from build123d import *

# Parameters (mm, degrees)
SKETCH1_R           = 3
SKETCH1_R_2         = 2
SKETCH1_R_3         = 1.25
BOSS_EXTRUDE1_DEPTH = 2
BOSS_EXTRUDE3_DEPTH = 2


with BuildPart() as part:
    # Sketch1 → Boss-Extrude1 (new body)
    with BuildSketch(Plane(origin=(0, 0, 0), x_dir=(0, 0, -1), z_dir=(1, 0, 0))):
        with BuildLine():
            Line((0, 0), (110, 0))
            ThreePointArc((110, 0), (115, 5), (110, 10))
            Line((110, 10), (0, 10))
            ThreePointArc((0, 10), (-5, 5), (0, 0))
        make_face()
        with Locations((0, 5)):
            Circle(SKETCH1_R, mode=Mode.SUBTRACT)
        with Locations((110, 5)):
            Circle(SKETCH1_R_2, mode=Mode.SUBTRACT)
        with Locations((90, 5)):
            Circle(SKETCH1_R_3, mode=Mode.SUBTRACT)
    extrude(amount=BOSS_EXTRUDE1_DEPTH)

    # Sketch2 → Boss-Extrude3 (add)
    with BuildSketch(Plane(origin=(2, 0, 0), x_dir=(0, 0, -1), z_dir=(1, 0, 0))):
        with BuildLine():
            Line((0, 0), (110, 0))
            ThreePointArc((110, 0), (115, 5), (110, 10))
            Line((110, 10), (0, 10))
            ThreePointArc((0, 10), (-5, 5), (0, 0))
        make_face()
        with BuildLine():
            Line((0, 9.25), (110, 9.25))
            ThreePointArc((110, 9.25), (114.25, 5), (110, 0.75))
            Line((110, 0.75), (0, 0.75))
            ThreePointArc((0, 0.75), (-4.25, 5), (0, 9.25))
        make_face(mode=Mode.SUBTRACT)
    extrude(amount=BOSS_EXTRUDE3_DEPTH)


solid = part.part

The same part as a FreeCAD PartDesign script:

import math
import FreeCAD as App
import Part
import Sketcher

V = App.Vector
Q = App.Units.Quantity

doc = App.newDocument("Part")
body = doc.addObject("PartDesign::Body", "Body")

# Sketch on YZ plane
sketch1 = body.newObject("Sketcher::SketchObject", "Sketch")
sketch1.AttachmentSupport = (doc.getObject("YZ_Plane"), [""])
sketch1.MapMode = "FlatFace"
sketch1.addGeometry(Part.LineSegment(V(0, 0, 0), V(0, -110, 0)), False)
sketch1.addGeometry(Part.ArcOfCircle(Part.Circle(V(5, -110, 0), V(0, 0, 1), 5), math.radians(180), math.radians(360)), False)
sketch1.addGeometry(Part.LineSegment(V(10, -110, 0), V(10, 0, 0)), False)
sketch1.addGeometry(Part.ArcOfCircle(Part.Circle(V(5, 0, 0), V(0, 0, 1), 5), math.radians(0), math.radians(180)), False)
sketch1.addGeometry(Part.Circle(V(5, 0, 0), V(0, 0, 1), 3), False)
sketch1.addGeometry(Part.Circle(V(5, -90, 0), V(0, 0, 1), 1.2), False)
sketch1.addGeometry(Part.Circle(V(5, -110, 0), V(0, 0, 1), 2), False)
sketch1.addConstraint(Sketcher.Constraint("Tangent", 0, 2, 1, 1))
sketch1.addConstraint(Sketcher.Constraint("Tangent", 1, 2, 2, 1))
sketch1.addConstraint(Sketcher.Constraint("Tangent", 2, 2, 3, 1))
sketch1.addConstraint(Sketcher.Constraint("Tangent", 3, 2, 0, 1))
sketch1.addConstraint(Sketcher.Constraint("Vertical", 0))
sketch1.addConstraint(Sketcher.Constraint("Vertical", 2))
sketch1.addConstraint(Sketcher.Constraint("Coincident", 3, 2, -1, 1))
sketch1.addConstraint(Sketcher.Constraint("Coincident", 4, 3, 3, 3))
sketch1.addConstraint(Sketcher.Constraint("Coincident", 6, 3, 1, 3))
sketch1.addConstraint(Sketcher.Constraint("Vertical", 4, 3, 5, 3))
sketch1.addConstraint(Sketcher.Constraint("Diameter", 4, Q("6 mm")))
sketch1.addConstraint(Sketcher.Constraint("Diameter", 6, Q("4 mm")))
sketch1.addConstraint(Sketcher.Constraint("Radius", 1, Q("5 mm")))
sketch1.addConstraint(Sketcher.Constraint("Diameter", 5, Q("2.5 mm")))
sketch1.addConstraint(Sketcher.Constraint("DistanceY", 0, 2, 0, 1, Q("110 mm")))
sketch1.addConstraint(Sketcher.Constraint("DistanceY", 5, 3, -1, 1, Q("90 mm")))
pad1 = body.newObject("PartDesign::Pad", "Pad")
pad1.Profile = sketch1
pad1.Length = 2

# Sketch on YZ plane
sketch2 = body.newObject("Sketcher::SketchObject", "Sketch001")
sketch2.AttachmentSupport = (doc.getObject("YZ_Plane"), [""])
sketch2.MapMode = "FlatFace"
sketch2.AttachmentOffset = App.Placement(V(0, 0, 2), App.Rotation())
sketch2.addGeometry(Part.LineSegment(V(0, 0, 0), V(0, -110, 0)), False)
sketch2.addGeometry(Part.ArcOfCircle(Part.Circle(V(5, -110, 0), V(0, 0, 1), 5), math.radians(180), math.radians(360)), False)
sketch2.addGeometry(Part.LineSegment(V(10, -110, 0), V(10, 0, 0)), False)
sketch2.addGeometry(Part.ArcOfCircle(Part.Circle(V(5, 0, 0), V(0, 0, 1), 5), math.radians(0), math.radians(180)), False)
sketch2.addGeometry(Part.ArcOfCircle(Part.Circle(V(5, 0, 0), V(0, 0, 1), 4.2), math.radians(0), math.radians(180)), False)
sketch2.addGeometry(Part.LineSegment(V(9.2, 0, 0), V(9.2, -110, 0)), False)
sketch2.addGeometry(Part.ArcOfCircle(Part.Circle(V(5, -110, 0), V(0, 0, 1), 4.2), math.radians(180), math.radians(360)), False)
sketch2.addGeometry(Part.LineSegment(V(0.8, -110, 0), V(0.8, 0, 0)), False)
sketch2.addConstraint(Sketcher.Constraint("Tangent", 0, 2, 1, 1))
sketch2.addConstraint(Sketcher.Constraint("Tangent", 1, 2, 2, 1))
sketch2.addConstraint(Sketcher.Constraint("Tangent", 2, 2, 3, 1))
sketch2.addConstraint(Sketcher.Constraint("Tangent", 3, 2, 0, 1))
sketch2.addConstraint(Sketcher.Constraint("Tangent", 4, 1, 5, 1))
sketch2.addConstraint(Sketcher.Constraint("Tangent", 5, 2, 6, 2))
sketch2.addConstraint(Sketcher.Constraint("Tangent", 6, 1, 7, 1))
sketch2.addConstraint(Sketcher.Constraint("Tangent", 7, 2, 4, 2))
sketch2.addConstraint(Sketcher.Constraint("Vertical", 0))
sketch2.addConstraint(Sketcher.Constraint("Vertical", 2))
sketch2.addConstraint(Sketcher.Constraint("Vertical", 5))
sketch2.addConstraint(Sketcher.Constraint("Vertical", 7))
sketch2.addConstraint(Sketcher.Constraint("Coincident", 3, 2, -1, 1))
sketch2.addConstraint(Sketcher.Constraint("Coincident", 4, 3, 3, 3))
sketch2.addConstraint(Sketcher.Constraint("Horizontal", 6, 3, 0, 2))
sketch2.addConstraint(Sketcher.Constraint("Radius", 1, Q("5 mm")))
sketch2.addConstraint(Sketcher.Constraint("DistanceY", 0, 2, 0, 1, Q("110 mm")))
sketch2.addConstraint(Sketcher.Constraint("Radius", 4, Q("4.25 mm")))
pad2 = body.newObject("PartDesign::Pad", "Pad001")
pad2.Profile = sketch2
pad2.Length = 2

doc.recompute()
